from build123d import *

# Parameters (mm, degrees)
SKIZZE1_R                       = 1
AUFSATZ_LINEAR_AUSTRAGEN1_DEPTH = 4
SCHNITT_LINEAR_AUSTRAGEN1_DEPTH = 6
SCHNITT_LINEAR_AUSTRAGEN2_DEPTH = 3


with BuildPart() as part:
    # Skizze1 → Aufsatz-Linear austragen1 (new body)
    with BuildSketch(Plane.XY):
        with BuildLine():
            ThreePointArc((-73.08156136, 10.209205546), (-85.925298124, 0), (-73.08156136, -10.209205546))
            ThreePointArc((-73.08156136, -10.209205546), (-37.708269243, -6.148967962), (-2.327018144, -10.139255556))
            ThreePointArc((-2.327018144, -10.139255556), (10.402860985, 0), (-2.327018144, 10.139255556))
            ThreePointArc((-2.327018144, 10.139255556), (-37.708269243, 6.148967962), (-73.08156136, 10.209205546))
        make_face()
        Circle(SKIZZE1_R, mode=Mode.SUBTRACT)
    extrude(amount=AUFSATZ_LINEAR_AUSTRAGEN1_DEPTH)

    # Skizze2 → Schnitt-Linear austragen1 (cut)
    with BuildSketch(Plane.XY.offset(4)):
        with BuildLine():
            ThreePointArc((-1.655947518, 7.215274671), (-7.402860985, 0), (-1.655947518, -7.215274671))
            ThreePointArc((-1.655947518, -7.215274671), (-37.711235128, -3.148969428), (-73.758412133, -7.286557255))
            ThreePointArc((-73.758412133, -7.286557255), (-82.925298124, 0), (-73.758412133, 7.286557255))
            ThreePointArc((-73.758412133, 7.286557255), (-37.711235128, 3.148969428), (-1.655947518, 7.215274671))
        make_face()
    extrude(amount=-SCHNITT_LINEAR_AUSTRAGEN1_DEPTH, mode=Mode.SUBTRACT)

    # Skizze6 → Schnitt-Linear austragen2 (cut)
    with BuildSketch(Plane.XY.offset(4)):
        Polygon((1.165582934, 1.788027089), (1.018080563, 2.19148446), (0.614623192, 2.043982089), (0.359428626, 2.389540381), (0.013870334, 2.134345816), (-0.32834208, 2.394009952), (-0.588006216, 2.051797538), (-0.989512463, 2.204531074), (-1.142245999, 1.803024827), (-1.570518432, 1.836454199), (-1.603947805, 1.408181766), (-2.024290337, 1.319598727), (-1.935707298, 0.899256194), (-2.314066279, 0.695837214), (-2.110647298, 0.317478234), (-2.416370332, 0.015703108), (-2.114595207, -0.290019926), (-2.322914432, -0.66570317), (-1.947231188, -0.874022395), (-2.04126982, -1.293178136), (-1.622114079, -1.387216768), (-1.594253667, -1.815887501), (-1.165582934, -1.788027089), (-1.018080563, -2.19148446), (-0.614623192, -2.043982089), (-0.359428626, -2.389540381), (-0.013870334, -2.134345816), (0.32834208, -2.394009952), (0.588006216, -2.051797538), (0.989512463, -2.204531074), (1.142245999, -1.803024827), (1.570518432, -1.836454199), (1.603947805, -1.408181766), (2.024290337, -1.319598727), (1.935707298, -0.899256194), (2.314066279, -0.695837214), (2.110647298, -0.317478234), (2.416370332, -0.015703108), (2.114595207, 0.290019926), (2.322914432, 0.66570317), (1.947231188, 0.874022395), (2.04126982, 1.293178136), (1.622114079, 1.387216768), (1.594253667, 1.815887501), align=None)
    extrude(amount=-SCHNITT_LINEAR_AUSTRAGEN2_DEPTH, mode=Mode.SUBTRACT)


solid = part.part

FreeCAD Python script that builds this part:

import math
import FreeCAD as App
import Part
import Sketcher

V = App.Vector
Q = App.Units.Quantity


def add_polygon(sketch, points):
    """Adds a closed chain of lines whose ends are joined by coincident constraints."""
    first, n = sketch.GeometryCount, len(points)
    for a, b in zip(points, points[1:] + points[:1]):
        sketch.addGeometry(Part.LineSegment(App.Vector(*a, 0), App.Vector(*b, 0)), False)
    for i in range(n):
        sketch.addConstraint(Sketcher.Constraint("Coincident", first + i, 2, first + (i + 1) % n, 1))

doc = App.newDocument("Part")
body = doc.addObject("PartDesign::Body", "Body")

# Sketch on XY plane
sketch1 = body.newObject("Sketcher::SketchObject", "Sketch")
sketch1.AttachmentSupport = (doc.getObject("XY_Plane"), [""])
sketch1.MapMode = "FlatFace"
sketch1.addGeometry([
    Part.ArcOfCircle(Part.Circle(V(-75.445893, 0, 0), V(0, 0, 1), 10.479406), math.radians(76.960842), math.radians(283.039158)),  # 0
    Part.ArcOfCircle(Part.Circle(V(-37.552585, -163.623674, 0), V(0, 0, 1), 157.474783), math.radians(77.07413), math.radians(103.039158)),  # 1
    Part.ArcOfCircle(Part.Circle(V(0, 0, 0), V(0, 0, 1), 10.402861), math.radians(-102.92587), math.radians(102.92587)),  # 2
    Part.ArcOfCircle(Part.Circle(V(-37.552585, 163.623674, 0), V(0, 0, 1), 157.474783), math.radians(-103.039158), math.radians(-77.07413)),  # 3
    Part.Circle(V(0, 0, 0), V(0, 0, 1), 1),  # 4
], False)
sketch1.addConstraint([
    Sketcher.Constraint("Tangent", 0, 2, 1, 2),
    Sketcher.Constraint("Tangent", 1, 1, 2, 1),
    Sketcher.Constraint("Tangent", 2, 2, 3, 2),
    Sketcher.Constraint("Tangent", 3, 1, 0, 1),
    Sketcher.Constraint("Coincident", 2, 3, -1, 1),
    Sketcher.Constraint("Coincident", 4, 3, -1, 1),
    Sketcher.Constraint("Equal", 1, 3),
    Sketcher.Constraint("PointOnObject", 0, 3, -1),
    Sketcher.Constraint("Diameter", 4, Q("2 mm")),
    Sketcher.Constraint("Radius", 2, Q("10.402861 mm")),
    Sketcher.Constraint("Radius", 0, Q("10.479406 mm")),
    Sketcher.Constraint("Radius", 1, Q("157.474783 mm")),
    Sketcher.Constraint("DistanceX", 0, 2, -1, 1, Q("73.081561 mm")),
])
pad1 = body.newObject("PartDesign::Pad", "Pad")
pad1.Profile = sketch1
pad1.Length = 4

# Sketch on XY plane
sketch2 = body.newObject("Sketcher::SketchObject", "Sketch001")
sketch2.AttachmentSupport = (doc.getObject("XY_Plane"), [""])
sketch2.MapMode = "FlatFace"
sketch2.AttachmentOffset = App.Placement(V(0, 0, 4), App.Rotation())
sketch2.addGeometry([
    Part.ArcOfCircle(Part.Circle(V(0, 0, 0), V(0, 0, 1), 7.402861), math.radians(102.92587), math.radians(257.07413)),
    Part.ArcOfCircle(Part.Circle(V(-37.552585, 163.623674, 0), V(0, 0, 1), 160.474783), math.radians(-103.039158), math.radians(-77.07413)),
    Part.ArcOfCircle(Part.Circle(V(-75.445893, 0, 0), V(0, 0, 1), 7.479406), math.radians(76.960842), math.radians(283.039158)),
    Part.ArcOfCircle(Part.Circle(V(-37.552585, -163.623674, 0), V(0, 0, 1), 160.474783), math.radians(77.07413), math.radians(103.039158)),
], False)
sketch2.addConstraint([
    Sketcher.Constraint("Tangent", 0, 1, 1, 2),
    Sketcher.Constraint("Tangent", 1, 1, 2, 1),
    Sketcher.Constraint("Tangent", 2, 2, 3, 2),
    Sketcher.Constraint("Tangent", 3, 1, 0, 2),
    Sketcher.Constraint("Coincident", 0, 3, -1, 1),
    Sketcher.Constraint("Equal", 1, 3),
    Sketcher.Constraint("PointOnObject", 2, 3, -1),
    Sketcher.Constraint("Radius", 0, Q("7.402861 mm")),
    Sketcher.Constraint("Radius", 1, Q("160.474783 mm")),
    Sketcher.Constraint("Radius", 2, Q("7.479406 mm")),
    Sketcher.Constraint("DistanceY", 0, 1, 1, 3, Q("156.408399 mm")),
])
pocket1 = body.newObject("PartDesign::Pocket", "Pocket")
pocket1.Profile = sketch2
pocket1.Length = 6

# Sketch on XY plane
sketch3 = body.newObject("Sketcher::SketchObject", "Sketch002")
sketch3.AttachmentSupport = (doc.getObject("XY_Plane"), [""])
sketch3.MapMode = "FlatFace"
sketch3.AttachmentOffset = App.Placement(V(0, 0, 4), App.Rotation())
add_polygon(sketch3, [(1.165583, 1.788027), (1.018081, 2.191484), (0.614623, 2.043982), (0.359429, 2.38954), (0.01387, 2.134346), (-0.328342, 2.39401), (-0.588006, 2.051798), (-0.989512, 2.204531), (-1.142246, 1.803025), (-1.570518, 1.836454), (-1.603948, 1.408182), (-2.02429, 1.319599), (-1.935707, 0.899256), (-2.314066, 0.695837), (-2.110647, 0.317478), (-2.41637, 0.015703), (-2.114595, -0.29002), (-2.322914, -0.665703), (-1.947231, -0.874022), (-2.04127, -1.293178), (-1.622114, -1.387217), (-1.594254, -1.815888), (-1.165583, -1.788027), (-1.018081, -2.191484), (-0.614623, -2.043982), (-0.359429, -2.38954), (-0.01387, -2.134346), (0.328342, -2.39401), (0.588006, -2.051798), (0.989512, -2.204531), (1.142246, -1.803025), (1.570518, -1.836454), (1.603948, -1.408182), (2.02429, -1.319599), (1.935707, -0.899256), (2.314066, -0.695837), (2.110647, -0.317478), (2.41637, -0.015703), (2.114595, 0.29002), (2.322914, 0.665703), (1.947231, 0.874022), (2.04127, 1.293178), (1.622114, 1.387217), (1.594254, 1.815888)])  # lines 0-43
sketch3.addConstraint([
    Sketcher.Constraint("DistanceY", -1, 1, 10, 2, Q("1.319599 mm")),
    Sketcher.Constraint("DistanceY", 32, 2, -1, 1, Q("1.319599 mm")),
    Sketcher.Constraint("DistanceX", 9, 2, 7, 2, Q("0.461702 mm")),
    Sketcher.Constraint("DistanceY", 10, 2, 5, 2, Q("0.732199 mm")),
    Sketcher.Constraint("DistanceY", 11, 2, 8, 2, Q("0.937198 mm")),
    Sketcher.Constraint("DistanceX", 13, 2, 9, 2, Q("0.506699 mm")),
    Sketcher.Constraint("DistanceY", 15, 2, 13, 2, Q("0.607498 mm")),
    Sketcher.Constraint("DistanceY", 17, 2, 13, 2, Q("1.191501 mm")),
    Sketcher.Constraint("DistanceX", 14, 2, 18, 2, Q("0.375101 mm")),
    Sketcher.Constraint("DistanceX", 16, 2, 19, 2, Q("0.7008 mm")),
    Sketcher.Constraint("DistanceX", 29, 2, 31, 2, Q("0.461702 mm")),
    Sketcher.Constraint("DistanceY", 27, 2, 32, 2, Q("0.732199 mm")),
    Sketcher.Constraint("DistanceY", 30, 2, 33, 2, Q("0.937198 mm")),
    Sketcher.Constraint("DistanceX", 31, 2, 35, 2, Q("0.506699 mm")),
    Sketcher.Constraint("DistanceY", 35, 2, 37, 2, Q("0.607498 mm")),
    Sketcher.Constraint("DistanceY", 35, 2, 39, 2, Q("1.191501 mm")),
    Sketcher.Constraint("DistanceX", 40, 2, 36, 2, Q("0.375101 mm")),
    Sketcher.Constraint("DistanceX", 41, 2, 38, 2, Q("0.7008 mm")),
    Sketcher.Constraint("DistanceX", -1, 1, 0, 2, Q("1.018081 mm")),
    Sketcher.Constraint("DistanceX", -1, 1, 2, 2, Q("0.359429 mm")),
    Sketcher.Constraint("DistanceY", -1, 1, 2, 2, Q("2.38954 mm")),
    Sketcher.Constraint("DistanceX", -1, 1, 3, 2, Q("0.01387 mm")),
    Sketcher.Constraint("DistanceY", -1, 1, 4, 2, Q("2.39401 mm")),
    Sketcher.Constraint("DistanceY", -1, 1, 6, 2, Q("2.204531 mm")),
    Sketcher.Constraint("DistanceX", 8, 2, -1, 1, Q("1.570518 mm")),
    Sketcher.Constraint("DistanceY", -1, 1, 9, 2, Q("1.408182 mm")),
    Sketcher.Constraint("DistanceX", 10, 2, -1, 1, Q("2.02429 mm")),
    Sketcher.Constraint("DistanceY", -1, 1, 13, 2, Q("0.317478 mm")),
    Sketcher.Constraint("DistanceX", 14, 2, -1, 1, Q("2.41637 mm")),
    Sketcher.Constraint("DistanceX", 17, 2, -1, 1, Q("1.947231 mm")),
    Sketcher.Constraint("DistanceY", 18, 2, -1, 1, Q("1.293178 mm")),
    Sketcher.Constraint("DistanceX", 22, 2, -1, 1, Q("1.018081 mm")),
    Sketcher.Constraint("DistanceX", 24, 2, -1, 1, Q("0.359429 mm")),
    Sketcher.Constraint("DistanceY", 24, 2, -1, 1, Q("2.38954 mm")),
    Sketcher.Constraint("DistanceX", 25, 2, -1, 1, Q("0.01387 mm")),
    Sketcher.Constraint("DistanceY", 26, 2, -1, 1, Q("2.39401 mm")),
    Sketcher.Constraint("DistanceY", 28, 2, -1, 1, Q("2.204531 mm")),
    Sketcher.Constraint("DistanceX", -1, 1, 30, 2, Q("1.570518 mm")),
    Sketcher.Constraint("DistanceY", 31, 2, -1, 1, Q("1.408182 mm")),
    Sketcher.Constraint("DistanceX", -1, 1, 32, 2, Q("2.02429 mm")),
    Sketcher.Constraint("DistanceY", 35, 2, -1, 1, Q("0.317478 mm")),
    Sketcher.Constraint("DistanceX", -1, 1, 36, 2, Q("2.41637 mm")),
    Sketcher.Constraint("DistanceX", -1, 1, 39, 2, Q("1.947231 mm")),
    Sketcher.Constraint("DistanceY", -1, 1, 40, 2, Q("1.293178 mm")),
    Sketcher.Constraint("DistanceY", 1, 2, 2, 2, Q("0.345558 mm")),
    Sketcher.Constraint("DistanceY", 3, 2, 0, 2, Q("0.057139 mm")),
    Sketcher.Constraint("DistanceX", 4, 2, 2, 2, Q("0.687771 mm")),
    Sketcher.Constraint("DistanceY", 5, 2, 3, 2, Q("0.082548 mm")),
    Sketcher.Constraint("DistanceX", 5, 2, 1, 2, Q("1.202629 mm")),
    Sketcher.Constraint("DistanceX", 6, 2, 4, 2, Q("0.66117 mm")),
    Sketcher.Constraint("DistanceX", 7, 2, 5, 2, Q("0.55424 mm")),
    Sketcher.Constraint("DistanceY", 7, 2, 3, 2, Q("0.331321 mm")),
    Sketcher.Constraint("DistanceY", 7, 2, 8, 2, Q("0.033429 mm")),
    Sketcher.Constraint("DistanceX", 9, 2, 8, 2, Q("0.033429 mm")),
    Sketcher.Constraint("DistanceX", 11, 2, 9, 2, Q("0.331759 mm")),
    Sketcher.Constraint("DistanceX", 12, 2, 11, 2, Q("0.378359 mm")),
    Sketcher.Constraint("DistanceY", 12, 2, 11, 2, Q("0.203419 mm")),
    Sketcher.Constraint("DistanceY", 14, 2, 9, 2, Q("1.392479 mm")),
    Sketcher.Constraint("DistanceX", 12, 2, 15, 2, Q("0.199471 mm")),
    Sketcher.Constraint("DistanceX", 16, 2, 15, 2, Q("0.208319 mm")),
    Sketcher.Constraint("DistanceY", 16, 2, 13, 2, Q("0.983181 mm")),
    Sketcher.Constraint("DistanceY", 19, 2, 18, 2, Q("0.094039 mm")),
    Sketcher.Constraint("DistanceX", 19, 2, 20, 2, Q("0.02786 mm")),
    Sketcher.Constraint("DistanceY", 20, 2, 19, 2, Q("0.428671 mm")),
    Sketcher.Constraint("DistanceX", 20, 2, 21, 2, Q("0.428671 mm")),
    Sketcher.Constraint("DistanceY", 20, 2, 21, 2, Q("0.02786 mm")),
    Sketcher.Constraint("DistanceX", 21, 2, 23, 2, Q("0.55096 mm")),
    Sketcher.Constraint("DistanceY", 24, 2, 23, 2, Q("0.345558 mm")),
    Sketcher.Constraint("DistanceY", 22, 2, 25, 2, Q("0.057139 mm")),
    Sketcher.Constraint("DistanceY", 25, 2, 21, 2, Q("0.346319 mm")),
    Sketcher.Constraint("DistanceX", 24, 2, 26, 2, Q("0.687771 mm")),
    Sketcher.Constraint("DistanceX", 23, 2, 27, 2, Q("1.202629 mm")),
    Sketcher.Constraint("DistanceX", 26, 2, 28, 2, Q("0.66117 mm")),
    Sketcher.Constraint("DistanceX", 27, 2, 29, 2, Q("0.55424 mm")),
    Sketcher.Constraint("DistanceY", 25, 2, 29, 2, Q("0.331321 mm")),
    Sketcher.Constraint("DistanceY", 30, 2, 29, 2, Q("0.033429 mm")),
    Sketcher.Constraint("DistanceX", 31, 2, 33, 2, Q("0.331759 mm")),
    Sketcher.Constraint("DistanceX", 33, 2, 34, 2, Q("0.378359 mm")),
    Sketcher.Constraint("DistanceY", 33, 2, 34, 2, Q("0.203419 mm")),
    Sketcher.Constraint("DistanceY", 31, 2, 36, 2, Q("1.392479 mm")),
    Sketcher.Constraint("DistanceX", 37, 2, 34, 2, Q("0.199471 mm")),
    Sketcher.Constraint("DistanceX", 37, 2, 38, 2, Q("0.208319 mm")),
    Sketcher.Constraint("DistanceY", 35, 2, 38, 2, Q("0.983181 mm")),
    Sketcher.Constraint("DistanceY", 40, 2, 41, 2, Q("0.094039 mm")),
    Sketcher.Constraint("DistanceX", 42, 2, 41, 2, Q("0.02786 mm")),
    Sketcher.Constraint("DistanceY", 41, 2, 42, 2, Q("0.428671 mm")),
    Sketcher.Constraint("DistanceX", 43, 2, 42, 2, Q("0.428671 mm")),
    Sketcher.Constraint("DistanceY", 43, 2, 42, 2, Q("0.02786 mm")),
])
pocket2 = body.newObject("PartDesign::Pocket", "Pocket001")
pocket2.Profile = sketch3
pocket2.Length = 3

doc.recompute()
